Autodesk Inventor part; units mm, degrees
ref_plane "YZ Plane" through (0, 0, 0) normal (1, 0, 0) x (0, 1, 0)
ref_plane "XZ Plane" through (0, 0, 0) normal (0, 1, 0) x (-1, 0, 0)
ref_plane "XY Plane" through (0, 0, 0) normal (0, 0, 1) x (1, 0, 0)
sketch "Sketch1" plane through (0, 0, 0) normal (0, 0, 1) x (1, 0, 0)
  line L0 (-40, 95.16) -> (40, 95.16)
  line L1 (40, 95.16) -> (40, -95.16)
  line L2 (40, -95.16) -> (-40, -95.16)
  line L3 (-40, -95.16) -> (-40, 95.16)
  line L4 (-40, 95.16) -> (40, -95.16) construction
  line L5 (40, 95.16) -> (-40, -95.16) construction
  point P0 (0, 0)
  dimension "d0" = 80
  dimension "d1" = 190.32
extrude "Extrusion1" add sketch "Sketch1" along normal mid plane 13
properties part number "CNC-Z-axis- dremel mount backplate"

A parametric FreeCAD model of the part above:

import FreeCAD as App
import Part
import Sketcher
Q = App.Units.Quantity

doc = App.newDocument("Part")
body = doc.addObject("PartDesign::Body", "Body")

# Sketch on XY plane
sketch1 = body.newObject("Sketcher::SketchObject", "Sketch")
sketch1.AttachmentSupport = (doc.getObject("XY_Plane"), [""])
sketch1.MapMode = "FlatFace"
sketch1.addGeometry([
    Part.LineSegment(App.Vector(40, 95.16, 0), App.Vector(-40, 95.16, 0)),
    Part.LineSegment(App.Vector(-40, 95.16, 0), App.Vector(-40, -95.16, 0)),
    Part.LineSegment(App.Vector(-40, -95.16, 0), App.Vector(40, -95.16, 0)),
    Part.LineSegment(App.Vector(40, -95.16, 0), App.Vector(40, 95.16, 0)),
], False)
sketch1.addConstraint([
    Sketcher.Constraint("Coincident", 0, 2, 1, 1),
    Sketcher.Constraint("Coincident", 1, 2, 2, 1),
    Sketcher.Constraint("Coincident", 2, 2, 3, 1),
    Sketcher.Constraint("Coincident", 3, 2, 0, 1),
    Sketcher.Constraint("Horizontal", 0),
    Sketcher.Constraint("Vertical", 1),
    Sketcher.Constraint("Horizontal", 2),
    Sketcher.Constraint("Vertical", 3),
    Sketcher.Constraint("Symmetric", 0, 2, 2, 2, -1, 1),
    Sketcher.Constraint("DistanceX", 0, 2, 0, 1, Q("80 mm")),
    Sketcher.Constraint("DistanceY", 1, 2, 1, 1, Q("190.32 mm")),
])
pad1 = body.newObject("PartDesign::Pad", "Pad")
pad1.Profile = sketch1
pad1.Length = 13
pad1.Midplane = True

doc.recompute()
